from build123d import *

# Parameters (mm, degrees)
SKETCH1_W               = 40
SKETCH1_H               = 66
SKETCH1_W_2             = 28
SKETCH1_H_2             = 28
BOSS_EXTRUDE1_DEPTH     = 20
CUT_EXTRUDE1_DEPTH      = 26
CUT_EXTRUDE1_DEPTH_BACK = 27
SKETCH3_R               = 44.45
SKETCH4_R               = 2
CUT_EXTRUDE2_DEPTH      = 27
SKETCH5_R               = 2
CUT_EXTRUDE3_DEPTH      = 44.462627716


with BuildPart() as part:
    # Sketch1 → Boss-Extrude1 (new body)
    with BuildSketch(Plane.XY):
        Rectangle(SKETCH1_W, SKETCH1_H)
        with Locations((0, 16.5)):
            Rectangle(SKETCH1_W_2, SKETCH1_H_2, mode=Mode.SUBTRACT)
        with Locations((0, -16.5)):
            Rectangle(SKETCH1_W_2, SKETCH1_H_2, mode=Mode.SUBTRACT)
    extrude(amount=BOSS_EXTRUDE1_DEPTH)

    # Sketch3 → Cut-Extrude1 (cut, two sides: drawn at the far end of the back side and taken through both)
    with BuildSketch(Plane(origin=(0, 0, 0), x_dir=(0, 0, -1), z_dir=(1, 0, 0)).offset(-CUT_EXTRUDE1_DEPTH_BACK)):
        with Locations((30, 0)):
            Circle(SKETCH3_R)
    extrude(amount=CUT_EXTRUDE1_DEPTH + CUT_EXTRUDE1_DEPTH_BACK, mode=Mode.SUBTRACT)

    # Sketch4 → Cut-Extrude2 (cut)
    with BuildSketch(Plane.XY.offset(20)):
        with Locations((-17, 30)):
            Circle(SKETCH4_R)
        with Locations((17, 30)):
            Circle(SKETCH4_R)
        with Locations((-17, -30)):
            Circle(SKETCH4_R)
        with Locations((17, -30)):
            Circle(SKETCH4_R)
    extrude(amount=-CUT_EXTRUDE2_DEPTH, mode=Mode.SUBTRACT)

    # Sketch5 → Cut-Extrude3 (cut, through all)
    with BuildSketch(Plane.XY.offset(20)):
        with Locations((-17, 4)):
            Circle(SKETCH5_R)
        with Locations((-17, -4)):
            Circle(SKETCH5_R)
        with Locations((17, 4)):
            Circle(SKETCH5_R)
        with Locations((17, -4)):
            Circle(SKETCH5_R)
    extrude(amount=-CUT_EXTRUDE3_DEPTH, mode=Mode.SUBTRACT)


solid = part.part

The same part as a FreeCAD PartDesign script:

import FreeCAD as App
import Part
import Sketcher

V = App.Vector
Q = App.Units.Quantity

doc = App.newDocument("Part")
body = doc.addObject("PartDesign::Body", "Body")

sketch1 = body.newObject("Sketcher::SketchObject", "Sketch")
sketch1.AttachmentSupport = (doc.getObject("XY_Plane"), [""])
sketch1.MapMode = "FlatFace"
sketch1.addGeometry(Part.LineSegment(V(-20, 33, 0), V(-20, -33, 0)), False)
sketch1.addGeometry(Part.LineSegment(V(-20, -33, 0), V(20, -33, 0)), False)
sketch1.addGeometry(Part.LineSegment(V(20, -33, 0), V(20, 33, 0)), False)
sketch1.addGeometry(Part.LineSegment(V(20, 33, 0), V(-20, 33, 0)), False)
sketch1.addGeometry(Part.LineSegment(V(14, -30.5, 0), V(-14, -30.5, 0)), False)
sketch1.addGeometry(Part.LineSegment(V(-14, -30.5, 0), V(-14, -2.5, 0)), False)
sketch1.addGeometry(Part.LineSegment(V(-14, -2.5, 0), V(14, -2.5, 0)), False)
sketch1.addGeometry(Part.LineSegment(V(14, -2.5, 0), V(14, -30.5, 0)), False)
sketch1.addGeometry(Part.LineSegment(V(14, 2.5, 0), V(-14, 2.5, 0)), False)
sketch1.addGeometry(Part.LineSegment(V(-14, 2.5, 0), V(-14, 30.5, 0)), False)
sketch1.addGeometry(Part.LineSegment(V(-14, 30.5, 0), V(14, 30.5, 0)), False)
sketch1.addGeometry(Part.LineSegment(V(14, 30.5, 0), V(14, 2.5, 0)), False)
sketch1.addConstraint(Sketcher.Constraint("Coincident", 0, 2, 1, 1))
sketch1.addConstraint(Sketcher.Constraint("Coincident", 1, 2, 2, 1))
sketch1.addConstraint(Sketcher.Constraint("Coincident", 2, 2, 3, 1))
sketch1.addConstraint(Sketcher.Constraint("Coincident", 3, 2, 0, 1))
sketch1.addConstraint(Sketcher.Constraint("Coincident", 4, 2, 5, 1))
sketch1.addConstraint(Sketcher.Constraint("Coincident", 5, 2, 6, 1))
sketch1.addConstraint(Sketcher.Constraint("Coincident", 6, 2, 7, 1))
sketch1.addConstraint(Sketcher.Constraint("Coincident", 7, 2, 4, 1))
sketch1.addConstraint(Sketcher.Constraint("Coincident", 8, 2, 9, 1))
sketch1.addConstraint(Sketcher.Constraint("Coincident", 9, 2, 10, 1))
sketch1.addConstraint(Sketcher.Constraint("Coincident", 10, 2, 11, 1))
sketch1.addConstraint(Sketcher.Constraint("Coincident", 11, 2, 8, 1))
sketch1.addConstraint(Sketcher.Constraint("Vertical", 0))
sketch1.addConstraint(Sketcher.Constraint("Horizontal", 1))
sketch1.addConstraint(Sketcher.Constraint("Vertical", 2))
sketch1.addConstraint(Sketcher.Constraint("Horizontal", 3))
sketch1.addConstraint(Sketcher.Constraint("Horizontal", 4))
sketch1.addConstraint(Sketcher.Constraint("Vertical", 5))
sketch1.addConstraint(Sketcher.Constraint("Horizontal", 6))
sketch1.addConstraint(Sketcher.Constraint("Vertical", 7))
sketch1.addConstraint(Sketcher.Constraint("Horizontal", 8))
sketch1.addConstraint(Sketcher.Constraint("Vertical", 9))
sketch1.addConstraint(Sketcher.Constraint("Horizontal", 10))
sketch1.addConstraint(Sketcher.Constraint("Vertical", 11))
sketch1.addConstraint(Sketcher.Constraint("Symmetric", 0, 2, 2, 2, -1, 1))
sketch1.addConstraint(Sketcher.Constraint("Symmetric", 6, 2, 8, 2, -1, 1))
sketch1.addConstraint(Sketcher.Constraint("Symmetric", 4, 2, 10, 2, -1, 1))
sketch1.addConstraint(Sketcher.Constraint("Vertical", 5, 2, 8, 2))
sketch1.addConstraint(Sketcher.Constraint("Equal", 10, 5))
sketch1.addConstraint(Sketcher.Constraint("DistanceX", 1, 1, 1, 2, Q("40 mm")))
sketch1.addConstraint(Sketcher.Constraint("DistanceX", 4, 2, 4, 1, Q("28 mm")))
sketch1.addConstraint(Sketcher.Constraint("DistanceY", 0, 2, 0, 1, Q("66 mm")))
sketch1.addConstraint(Sketcher.Constraint("DistanceY", 5, 2, 8, 2, Q("5 mm")))
pad1 = body.newObject("PartDesign::Pad", "Pad")
pad1.Profile = sketch1
pad1.Length = 20

sketch2 = body.newObject("Sketcher::SketchObject", "Sketch001")
sketch2.AttachmentSupport = (doc.getObject("YZ_Plane"), [""])
sketch2.MapMode = "FlatFace"
sketch2.addGeometry(Part.Circle(V(0, -30, 0), V(0, 0, 1), 44.45), False)
sketch2.addConstraint(Sketcher.Constraint("PointOnObject", 0, 3, -2))
sketch2.addConstraint(Sketcher.Constraint("Diameter", 0, Q("88.9 mm")))
sketch2.addConstraint(Sketcher.Constraint("DistanceY", 0, 3, -1, 1, Q("30 mm")))
pocket1 = body.newObject("PartDesign::Pocket", "Pocket")
pocket1.Profile = sketch2
pocket1.Type = "ThroughAll"
pocket1.Midplane = True

sketch3 = body.newObject("Sketcher::SketchObject", "Sketch002")
sketch3.AttachmentSupport = (doc.getObject("XY_Plane"), [""])
sketch3.MapMode = "FlatFace"
sketch3.AttachmentOffset = App.Placement(V(0, 0, 20), App.Rotation())
sketch3.addGeometry(Part.Circle(V(-17, 30, 0), V(0, 0, 1), 2), False)
sketch3.addGeometry(Part.Circle(V(17, 30, 0), V(0, 0, 1), 2), False)
sketch3.addGeometry(Part.Circle(V(-17, -30, 0), V(0, 0, 1), 2), False)
sketch3.addGeometry(Part.Circle(V(17, -30, 0), V(0, 0, 1), 2), False)
sketch3.addConstraint(Sketcher.Constraint("Equal", 0, 1))
sketch3.addConstraint(Sketcher.Constraint("Equal", 1, 2))
sketch3.addConstraint(Sketcher.Constraint("Equal", 2, 3))
sketch3.addConstraint(Sketcher.Constraint("Symmetric", 1, 3, 2, 3, -1, 1))
sketch3.addConstraint(Sketcher.Constraint("Symmetric", 0, 3, 3, 3, -1, 1))
sketch3.addConstraint(Sketcher.Constraint("Symmetric", 0, 3, 1, 3, -2))
sketch3.addConstraint(Sketcher.Constraint("Diameter", 0, Q("4 mm")))
sketch3.addConstraint(Sketcher.Constraint("DistanceX", 0, 3, -1, 1, Q("17 mm")))
sketch3.addConstraint(Sketcher.Constraint("DistanceY", -1, 1, 0, 3, Q("30 mm")))
pocket2 = body.newObject("PartDesign::Pocket", "Pocket001")
pocket2.Profile = sketch3
pocket2.Length = 27

sketch4 = body.newObject("Sketcher::SketchObject", "Sketch003")
sketch4.AttachmentSupport = (doc.getObject("XY_Plane"), [""])
sketch4.MapMode = "FlatFace"
sketch4.AttachmentOffset = App.Placement(V(0, 0, 20), App.Rotation())
sketch4.addGeometry(Part.Circle(V(-17, 4, 0), V(0, 0, 1), 2), False)
sketch4.addGeometry(Part.Circle(V(-17, -4, 0), V(0, 0, 1), 2), False)
sketch4.addGeometry(Part.Circle(V(17, 4, 0), V(0, 0, 1), 2), False)
sketch4.addGeometry(Part.Circle(V(17, -4, 0), V(0, 0, 1), 2), False)
sketch4.addConstraint(Sketcher.Constraint("Equal", 0, 1))
sketch4.addConstraint(Sketcher.Constraint("Equal", 1, 2))
sketch4.addConstraint(Sketcher.Constraint("Equal", 2, 3))
sketch4.addConstraint(Sketcher.Constraint("Symmetric", 1, 3, 2, 3, -1, 1))
sketch4.addConstraint(Sketcher.Constraint("Symmetric", 0, 3, 3, 3, -1, 1))
sketch4.addConstraint(Sketcher.Constraint("Symmetric", 0, 3, 2, 3, -2))
sketch4.addConstraint(Sketcher.Constraint("Diameter", 0, Q("4 mm")))
sketch4.addConstraint(Sketcher.Constraint("DistanceX", 0, 3, -1, 1, Q("17 mm")))
sketch4.addConstraint(Sketcher.Constraint("DistanceY", -1, 1, 0, 3, Q("4 mm")))
pocket3 = body.newObject("PartDesign::Pocket", "Pocket002")
pocket3.Profile = sketch4
pocket3.Type = "ThroughAll"

doc.recompute()
